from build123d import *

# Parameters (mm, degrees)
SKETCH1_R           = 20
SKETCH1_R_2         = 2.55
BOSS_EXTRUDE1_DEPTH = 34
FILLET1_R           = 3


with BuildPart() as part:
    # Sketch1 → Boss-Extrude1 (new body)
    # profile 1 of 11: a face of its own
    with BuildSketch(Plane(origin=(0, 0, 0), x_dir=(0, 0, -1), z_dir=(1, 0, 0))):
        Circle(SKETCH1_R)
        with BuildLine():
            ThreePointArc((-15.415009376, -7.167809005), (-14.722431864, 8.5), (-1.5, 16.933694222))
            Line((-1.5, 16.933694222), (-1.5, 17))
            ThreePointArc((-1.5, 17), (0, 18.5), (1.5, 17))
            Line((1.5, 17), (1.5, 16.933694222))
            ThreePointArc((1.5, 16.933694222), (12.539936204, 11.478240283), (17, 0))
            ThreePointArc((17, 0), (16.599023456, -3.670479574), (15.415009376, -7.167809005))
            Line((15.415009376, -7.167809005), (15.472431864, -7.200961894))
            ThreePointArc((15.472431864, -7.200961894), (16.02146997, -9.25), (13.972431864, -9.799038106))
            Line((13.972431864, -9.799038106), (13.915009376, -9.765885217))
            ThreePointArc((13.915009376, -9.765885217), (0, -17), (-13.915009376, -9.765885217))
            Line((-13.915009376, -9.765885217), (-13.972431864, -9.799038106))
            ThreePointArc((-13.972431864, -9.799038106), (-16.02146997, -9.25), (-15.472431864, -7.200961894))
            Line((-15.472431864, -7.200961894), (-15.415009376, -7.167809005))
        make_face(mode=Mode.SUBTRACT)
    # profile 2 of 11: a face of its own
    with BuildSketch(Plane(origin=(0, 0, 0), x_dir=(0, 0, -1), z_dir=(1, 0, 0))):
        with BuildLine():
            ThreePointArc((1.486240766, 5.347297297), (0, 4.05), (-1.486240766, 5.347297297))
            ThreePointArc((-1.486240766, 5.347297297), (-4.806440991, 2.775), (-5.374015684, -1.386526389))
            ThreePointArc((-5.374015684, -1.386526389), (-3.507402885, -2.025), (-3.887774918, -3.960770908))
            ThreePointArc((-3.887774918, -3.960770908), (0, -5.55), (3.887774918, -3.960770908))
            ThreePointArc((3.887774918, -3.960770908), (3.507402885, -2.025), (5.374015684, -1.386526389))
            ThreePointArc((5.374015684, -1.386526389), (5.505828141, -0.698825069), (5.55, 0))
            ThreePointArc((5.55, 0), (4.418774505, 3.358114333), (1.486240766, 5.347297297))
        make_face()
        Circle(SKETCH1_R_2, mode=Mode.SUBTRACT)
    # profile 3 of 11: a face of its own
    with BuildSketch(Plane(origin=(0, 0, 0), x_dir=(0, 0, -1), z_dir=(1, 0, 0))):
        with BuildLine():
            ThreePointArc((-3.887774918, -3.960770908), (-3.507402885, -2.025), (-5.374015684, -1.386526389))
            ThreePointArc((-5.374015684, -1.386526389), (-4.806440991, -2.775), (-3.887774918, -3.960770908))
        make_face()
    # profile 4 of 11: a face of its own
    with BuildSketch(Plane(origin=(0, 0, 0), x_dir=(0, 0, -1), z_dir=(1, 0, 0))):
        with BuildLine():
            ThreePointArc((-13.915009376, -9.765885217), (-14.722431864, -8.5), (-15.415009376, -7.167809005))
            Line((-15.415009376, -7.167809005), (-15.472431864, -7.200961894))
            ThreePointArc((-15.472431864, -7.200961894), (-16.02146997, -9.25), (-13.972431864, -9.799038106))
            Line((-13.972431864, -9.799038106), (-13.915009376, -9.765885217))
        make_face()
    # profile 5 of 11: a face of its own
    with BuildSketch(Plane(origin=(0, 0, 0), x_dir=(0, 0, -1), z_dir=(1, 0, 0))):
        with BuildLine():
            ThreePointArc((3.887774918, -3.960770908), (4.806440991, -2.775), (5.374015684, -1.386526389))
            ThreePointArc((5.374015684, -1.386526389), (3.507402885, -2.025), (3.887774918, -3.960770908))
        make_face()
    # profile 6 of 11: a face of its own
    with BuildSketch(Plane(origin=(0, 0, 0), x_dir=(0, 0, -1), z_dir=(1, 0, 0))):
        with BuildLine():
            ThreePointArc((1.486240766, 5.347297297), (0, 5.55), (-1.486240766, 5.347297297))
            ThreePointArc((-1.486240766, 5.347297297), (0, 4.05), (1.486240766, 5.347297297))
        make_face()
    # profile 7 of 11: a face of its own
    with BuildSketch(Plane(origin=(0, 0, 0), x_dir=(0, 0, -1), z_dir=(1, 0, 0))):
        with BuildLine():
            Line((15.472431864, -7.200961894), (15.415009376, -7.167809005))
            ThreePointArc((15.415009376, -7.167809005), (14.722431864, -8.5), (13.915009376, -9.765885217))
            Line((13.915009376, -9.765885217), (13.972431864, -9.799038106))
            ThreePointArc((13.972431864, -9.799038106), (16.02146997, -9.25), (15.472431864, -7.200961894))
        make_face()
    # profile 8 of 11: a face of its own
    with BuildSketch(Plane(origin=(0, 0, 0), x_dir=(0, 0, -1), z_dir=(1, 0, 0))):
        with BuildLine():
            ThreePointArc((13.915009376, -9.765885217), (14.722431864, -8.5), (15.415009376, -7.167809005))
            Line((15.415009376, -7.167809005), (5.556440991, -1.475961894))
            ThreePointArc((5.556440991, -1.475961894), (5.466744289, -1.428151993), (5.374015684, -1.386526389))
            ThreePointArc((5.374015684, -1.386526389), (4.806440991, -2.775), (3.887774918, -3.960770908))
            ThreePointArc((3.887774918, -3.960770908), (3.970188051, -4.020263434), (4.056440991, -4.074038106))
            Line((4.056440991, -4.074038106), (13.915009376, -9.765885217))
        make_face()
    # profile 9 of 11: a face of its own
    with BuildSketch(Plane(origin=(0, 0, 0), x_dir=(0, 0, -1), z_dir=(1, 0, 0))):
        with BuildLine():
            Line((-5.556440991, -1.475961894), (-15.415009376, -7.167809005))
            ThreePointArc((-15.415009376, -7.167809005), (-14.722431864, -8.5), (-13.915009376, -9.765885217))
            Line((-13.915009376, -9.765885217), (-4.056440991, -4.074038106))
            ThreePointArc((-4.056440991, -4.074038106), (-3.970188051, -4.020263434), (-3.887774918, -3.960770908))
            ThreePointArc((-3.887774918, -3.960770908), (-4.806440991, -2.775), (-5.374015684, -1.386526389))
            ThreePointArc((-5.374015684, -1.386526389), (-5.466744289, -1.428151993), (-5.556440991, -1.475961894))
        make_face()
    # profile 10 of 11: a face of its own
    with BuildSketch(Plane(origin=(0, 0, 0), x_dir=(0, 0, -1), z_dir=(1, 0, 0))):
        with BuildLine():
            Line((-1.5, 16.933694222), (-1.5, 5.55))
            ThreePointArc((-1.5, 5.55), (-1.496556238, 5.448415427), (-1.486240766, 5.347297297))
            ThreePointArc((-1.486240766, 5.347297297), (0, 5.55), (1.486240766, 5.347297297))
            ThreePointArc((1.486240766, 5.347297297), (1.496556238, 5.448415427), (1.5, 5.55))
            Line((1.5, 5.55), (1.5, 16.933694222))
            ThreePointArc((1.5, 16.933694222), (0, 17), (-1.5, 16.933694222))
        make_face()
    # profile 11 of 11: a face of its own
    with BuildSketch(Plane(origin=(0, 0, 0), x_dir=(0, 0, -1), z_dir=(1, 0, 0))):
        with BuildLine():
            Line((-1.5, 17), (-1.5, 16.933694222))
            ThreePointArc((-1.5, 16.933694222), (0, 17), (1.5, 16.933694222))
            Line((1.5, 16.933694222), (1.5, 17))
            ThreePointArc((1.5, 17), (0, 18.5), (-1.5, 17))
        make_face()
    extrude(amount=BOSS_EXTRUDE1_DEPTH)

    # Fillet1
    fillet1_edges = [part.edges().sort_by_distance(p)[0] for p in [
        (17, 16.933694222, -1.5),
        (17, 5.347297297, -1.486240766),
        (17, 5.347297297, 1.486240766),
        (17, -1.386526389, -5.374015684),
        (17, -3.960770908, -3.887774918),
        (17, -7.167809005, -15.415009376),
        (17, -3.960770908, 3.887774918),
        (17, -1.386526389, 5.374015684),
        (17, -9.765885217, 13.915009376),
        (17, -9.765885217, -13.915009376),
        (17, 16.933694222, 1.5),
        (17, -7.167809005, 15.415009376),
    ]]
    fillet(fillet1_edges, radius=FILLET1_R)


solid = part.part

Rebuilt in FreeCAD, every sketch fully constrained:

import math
import FreeCAD as App
import Part
import Sketcher

V = App.Vector
Q = App.Units.Quantity


def edges_at(feature, points):
    """Names of the edges that pass closest to the given points."""
    edges = feature.Shape.Edges
    near = lambda p: min(range(len(edges)), key=lambda i: edges[i].distToShape(Part.Vertex(*p))[0])
    return sorted({f"Edge{near(p) + 1}" for p in points})

doc = App.newDocument("Part")
body = doc.addObject("PartDesign::Body", "Body")

# Sketch on YZ plane
sketch1 = body.newObject("Sketcher::SketchObject", "Sketch")
sketch1.AttachmentSupport = (doc.getObject("YZ_Plane"), [""])
sketch1.MapMode = "FlatFace"
sketch1.addGeometry(Part.Circle(V(0, 0, 0), V(0, 0, 1), 20), False)
sketch1.addGeometry(Part.ArcOfCircle(Part.Circle(V(0, 0, 0), V(0, 0, 1), 17), math.radians(125), math.radians(235)), False)
sketch1.addGeometry(Part.LineSegment(V(-9.77, 13.92, 0), V(-4.07, 4.06, 0)), False)
sketch1.addGeometry(Part.ArcOfCircle(Part.Circle(V(-2.77, 4.81, 0), V(0, 0, 1), 1.5), math.radians(-150), math.radians(-142.23)), False)
sketch1.addGeometry(Part.ArcOfCircle(Part.Circle(V(0, 0, 0), V(0, 0, 1), 5.55), math.radians(136), math.radians(224)), False)
sketch1.addGeometry(Part.ArcOfCircle(Part.Circle(V(-2.77, -4.81, 0), V(0, 0, 1), 1.5), math.radians(142.23), math.radians(150)), False)
sketch1.addGeometry(Part.LineSegment(V(-4.07, -4.06, 0), V(-9.77, -13.92, 0)), False)
sketch1.addGeometry(Part.ArcOfCircle(Part.Circle(V(0, 0, 0), V(0, 0, 1), 17), math.radians(-115), math.radians(-90)), False)
sketch1.addGeometry(Part.LineSegment(V(-7.17, -15.42, 0), V(-1.48, -5.56, 0)), False)
sketch1.addGeometry(Part.ArcOfCircle(Part.Circle(V(-2.78, -4.81, 0), V(0, 0, 1), 1.5), math.radians(-30), math.radians(-22.23)), False)
sketch1.addGeometry(Part.ArcOfCircle(Part.Circle(V(0, 0, 0), V(0, 0, 1), 5.55), math.radians(-104.47), math.radians(-90)), False)
sketch1.addGeometry(Part.ArcOfCircle(Part.Circle(V(0, 0, 0), V(0, 0, 1), 5.55), math.radians(-90), math.radians(-16)), False)
sketch1.addGeometry(Part.ArcOfCircle(Part.Circle(V(5.55, 0, 0), V(0, 0, 1), 1.5), math.radians(-97.77), math.radians(-90)), False)
sketch1.addGeometry(Part.LineSegment(V(5.55, -1.5, 0), V(16.93, -1.5, 0)), False)
sketch1.addGeometry(Part.ArcOfCircle(Part.Circle(V(0, 0, 0), V(0, 0, 1), 17), math.radians(-90), math.radians(-5)), False)
sketch1.addGeometry(Part.ArcOfCircle(Part.Circle(V(0, 0, 0), V(0, 0, 1), 17), math.radians(5), math.radians(115)), False)
sketch1.addGeometry(Part.LineSegment(V(16.93, 1.5, 0), V(5.55, 1.5, 0)), False)
sketch1.addGeometry(Part.ArcOfCircle(Part.Circle(V(5.55, 0, 0), V(0, 0, 1), 1.5), math.radians(90), math.radians(97.77)), False)
sketch1.addGeometry(Part.ArcOfCircle(Part.Circle(V(0, 0, 0), V(0, 0, 1), 5.55), math.radians(16), math.radians(104)), False)
sketch1.addGeometry(Part.ArcOfCircle(Part.Circle(V(-2.78, 4.81, 0), V(0, 0, 1), 1.5), math.radians(22.23), math.radians(30)), False)
sketch1.addGeometry(Part.LineSegment(V(-1.48, 5.56, 0), V(-7.17, 15.42, 0)), False)
sketch1.addGeometry(Part.Circle(V(0, 0, 0), V(0, 0, 1), 2.55), False)
sketch1.addConstraint(Sketcher.Constraint("Coincident", 1, 1, 2, 1))
sketch1.addConstraint(Sketcher.Constraint("Tangent", 2, 2, 3, 1))
sketch1.addConstraint(Sketcher.Constraint("Coincident", 3, 2, 4, 1))
sketch1.addConstraint(Sketcher.Constraint("Coincident", 4, 2, 5, 1))
sketch1.addConstraint(Sketcher.Constraint("Tangent", 5, 2, 6, 1))
sketch1.addConstraint(Sketcher.Constraint("Coincident", 6, 2, 1, 2))
sketch1.addConstraint(Sketcher.Constraint("Coincident", 7, 1, 8, 1))
sketch1.addConstraint(Sketcher.Constraint("Tangent", 8, 2, 9, 1))
sketch1.addConstraint(Sketcher.Constraint("Coincident", 9, 2, 10, 1))
sketch1.addConstraint(Sketcher.Constraint("Tangent", 10, 2, 11, 1))
sketch1.addConstraint(Sketcher.Constraint("Coincident", 11, 2, 12, 1))
sketch1.addConstraint(Sketcher.Constraint("Tangent", 12, 2, 13, 1))
sketch1.addConstraint(Sketcher.Constraint("Coincident", 13, 2, 14, 2))
sketch1.addConstraint(Sketcher.Constraint("Tangent", 14, 1, 7, 2))
sketch1.addConstraint(Sketcher.Constraint("Coincident", 15, 1, 16, 1))
sketch1.addConstraint(Sketcher.Constraint("Tangent", 16, 2, 17, 1))
sketch1.addConstraint(Sketcher.Constraint("Coincident", 17, 2, 18, 1))
sketch1.addConstraint(Sketcher.Constraint("Coincident", 18, 2, 19, 1))
sketch1.addConstraint(Sketcher.Constraint("Tangent", 19, 2, 20, 1))
sketch1.addConstraint(Sketcher.Constraint("Coincident", 20, 2, 15, 2))
sketch1.addConstraint(Sketcher.Constraint("Horizontal", 13))
sketch1.addConstraint(Sketcher.Constraint("Horizontal", 16))
sketch1.addConstraint(Sketcher.Constraint("Coincident", 0, 3, -1, 1))
sketch1.addConstraint(Sketcher.Constraint("Coincident", 1, 3, -1, 1))
sketch1.addConstraint(Sketcher.Constraint("Coincident", 4, 3, -1, 1))
sketch1.addConstraint(Sketcher.Constraint("Coincident", 7, 3, -1, 1))
sketch1.addConstraint(Sketcher.Constraint("Coincident", 10, 3, -1, 1))
sketch1.addConstraint(Sketcher.Constraint("Coincident", 15, 3, -1, 1))
sketch1.addConstraint(Sketcher.Constraint("Coincident", 18, 3, -1, 1))
sketch1.addConstraint(Sketcher.Constraint("Coincident", 21, 3, -1, 1))
sketch1.addConstraint(Sketcher.Constraint("Coincident", 9, 3, 5, 3))
sketch1.addConstraint(Sketcher.Constraint("Coincident", 17, 3, 12, 3))
sketch1.addConstraint(Sketcher.Constraint("Coincident", 19, 3, 3, 3))
sketch1.addConstraint(Sketcher.Constraint("Equal", 3, 5))
sketch1.addConstraint(Sketcher.Constraint("Equal", 1, 7))
sketch1.addConstraint(Sketcher.Constraint("Equal", 5, 9))
sketch1.addConstraint(Sketcher.Constraint("Equal", 4, 10))
sketch1.addConstraint(Sketcher.Constraint("Equal", 10, 11))
sketch1.addConstraint(Sketcher.Constraint("Equal", 9, 12))
sketch1.addConstraint(Sketcher.Constraint("Equal", 7, 14))
sketch1.addConstraint(Sketcher.Constraint("Equal", 14, 15))
sketch1.addConstraint(Sketcher.Constraint("Equal", 12, 17))
sketch1.addConstraint(Sketcher.Constraint("Equal", 11, 18))
sketch1.addConstraint(Sketcher.Constraint("Equal", 17, 19))
sketch1.addConstraint(Sketcher.Constraint("Symmetric", 3, 3, 5, 3, -1))
sketch1.addConstraint(Sketcher.Constraint("PointOnObject", 12, 3, -1))
sketch1.addConstraint(Sketcher.Constraint("PointOnObject", 10, 2, -2))
sketch1.addConstraint(Sketcher.Constraint("PointOnObject", 14, 1, -2))
sketch1.addConstraint(Sketcher.Constraint("Parallel", 6, 8))
sketch1.addConstraint(Sketcher.Constraint("Parallel", 2, 20))
sketch1.addConstraint(Sketcher.Constraint("Vertical", 2, 2, 5, 2))
sketch1.addConstraint(Sketcher.Constraint("Equal", 6, 8))
sketch1.addConstraint(Sketcher.Constraint("Diameter", 0, 40.0))
sketch1.addConstraint(Sketcher.Constraint("Radius", 1, 17.0))
sketch1.addConstraint(Sketcher.Constraint("Diameter", 21, 5.1))
sketch1.addConstraint(Sketcher.Constraint("Radius", 3, 1.5))
sketch1.addConstraint(Sketcher.Constraint("Angle", 2, Q("-60 deg")))
sketch1.addConstraint(Sketcher.Constraint("Radius", 4, 5.55))
sketch1.addConstraint(Sketcher.Constraint("DistanceX", -1, 1, 12, 3, 5.55))
sketch1.addConstraint(Sketcher.Constraint("DistanceX", 3, 3, -1, 1, 2.775))
pad1 = body.newObject("PartDesign::Pad", "Pad")
pad1.Profile = sketch1
pad1.Length = 34
doc.recompute()

fillet = body.newObject("PartDesign::Fillet", "Fillet")
fillet.Base = (pad1, edges_at(pad1, [
    (17, 16.934, -1.5),
    (17, 5.347, -1.486),
    (17, 5.347, 1.486),
    (17, -1.387, -5.374),
    (17, -3.961, -3.888),
    (17, -7.168, -15.415),
    (17, -3.961, 3.888),
    (17, -1.387, 5.374),
    (17, -9.766, 13.915),
    (17, -9.766, -13.915),
    (17, 16.934, 1.5),
    (17, -7.168, 15.415),
]))
fillet.Radius = 3

doc.recompute()
